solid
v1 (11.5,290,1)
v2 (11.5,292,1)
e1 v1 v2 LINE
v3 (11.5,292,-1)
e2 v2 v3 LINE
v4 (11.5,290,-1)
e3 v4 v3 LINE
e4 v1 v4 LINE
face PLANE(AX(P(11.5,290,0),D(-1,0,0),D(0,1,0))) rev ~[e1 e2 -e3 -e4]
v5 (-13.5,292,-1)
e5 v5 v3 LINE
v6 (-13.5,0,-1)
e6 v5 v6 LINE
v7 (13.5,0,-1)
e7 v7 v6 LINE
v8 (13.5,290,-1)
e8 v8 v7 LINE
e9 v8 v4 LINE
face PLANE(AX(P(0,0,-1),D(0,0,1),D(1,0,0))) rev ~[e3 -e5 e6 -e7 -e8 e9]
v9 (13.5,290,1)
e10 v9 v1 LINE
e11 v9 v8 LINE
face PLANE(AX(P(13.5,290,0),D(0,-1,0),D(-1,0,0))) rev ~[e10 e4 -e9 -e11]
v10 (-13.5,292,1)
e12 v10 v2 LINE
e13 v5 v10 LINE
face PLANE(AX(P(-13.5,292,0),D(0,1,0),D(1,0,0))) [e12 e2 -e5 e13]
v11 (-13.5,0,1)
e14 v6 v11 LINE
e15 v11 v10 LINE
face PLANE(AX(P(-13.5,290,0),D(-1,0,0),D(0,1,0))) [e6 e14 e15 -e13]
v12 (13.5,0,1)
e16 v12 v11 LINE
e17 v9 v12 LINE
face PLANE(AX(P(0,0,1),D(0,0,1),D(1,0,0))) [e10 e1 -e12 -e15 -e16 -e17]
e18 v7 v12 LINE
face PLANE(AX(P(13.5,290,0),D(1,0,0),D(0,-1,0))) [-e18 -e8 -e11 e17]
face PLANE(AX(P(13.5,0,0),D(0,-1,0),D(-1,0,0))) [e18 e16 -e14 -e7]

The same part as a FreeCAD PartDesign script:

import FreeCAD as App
import Part
import Sketcher

V = App.Vector


def add_polygon(sketch, points):
    """Adds a closed chain of lines whose ends are joined by coincident constraints."""
    first, n = sketch.GeometryCount, len(points)
    for a, b in zip(points, points[1:] + points[:1]):
        sketch.addGeometry(Part.LineSegment(App.Vector(*a, 0), App.Vector(*b, 0)), False)
    for i in range(n):
        sketch.addConstraint(Sketcher.Constraint("Coincident", first + i, 2, first + (i + 1) % n, 1))

doc = App.newDocument("Part")
body = doc.addObject("PartDesign::Body", "Body")

# Sketch on XY plane
sketch1 = body.newObject("Sketcher::SketchObject", "Sketch")
sketch1.AttachmentSupport = (doc.getObject("XY_Plane"), [""])
sketch1.MapMode = "FlatFace"
add_polygon(sketch1, [(11.5, 292), (-13.5, 292), (-13.5, 0), (13.5, 0), (13.5, 290), (11.5, 290)])  # lines 0-5
sketch1.addConstraint([
    Sketcher.Constraint("Horizontal", 0),
    Sketcher.Constraint("Vertical", 1),
    Sketcher.Constraint("Horizontal", 2),
    Sketcher.Constraint("Vertical", 3),
    Sketcher.Constraint("Horizontal", 4),
    Sketcher.Constraint("Vertical", 5),
    Sketcher.Constraint("Symmetric", 1, 2, 2, 2, -1, 1),
    Sketcher.Constraint("Equal", 4, 5),
    Sketcher.Constraint("DistanceX", 2, 1, 2, 2, 27.0),
    Sketcher.Constraint("DistanceX", 4, 2, 4, 1, 2.0),
    Sketcher.Constraint("DistanceY", 1, 2, 1, 1, 292.0),
])
pad1 = body.newObject("PartDesign::Pad", "Pad")
pad1.Profile = sketch1
pad1.Length = 2
pad1.Midplane = True

doc.recompute()
